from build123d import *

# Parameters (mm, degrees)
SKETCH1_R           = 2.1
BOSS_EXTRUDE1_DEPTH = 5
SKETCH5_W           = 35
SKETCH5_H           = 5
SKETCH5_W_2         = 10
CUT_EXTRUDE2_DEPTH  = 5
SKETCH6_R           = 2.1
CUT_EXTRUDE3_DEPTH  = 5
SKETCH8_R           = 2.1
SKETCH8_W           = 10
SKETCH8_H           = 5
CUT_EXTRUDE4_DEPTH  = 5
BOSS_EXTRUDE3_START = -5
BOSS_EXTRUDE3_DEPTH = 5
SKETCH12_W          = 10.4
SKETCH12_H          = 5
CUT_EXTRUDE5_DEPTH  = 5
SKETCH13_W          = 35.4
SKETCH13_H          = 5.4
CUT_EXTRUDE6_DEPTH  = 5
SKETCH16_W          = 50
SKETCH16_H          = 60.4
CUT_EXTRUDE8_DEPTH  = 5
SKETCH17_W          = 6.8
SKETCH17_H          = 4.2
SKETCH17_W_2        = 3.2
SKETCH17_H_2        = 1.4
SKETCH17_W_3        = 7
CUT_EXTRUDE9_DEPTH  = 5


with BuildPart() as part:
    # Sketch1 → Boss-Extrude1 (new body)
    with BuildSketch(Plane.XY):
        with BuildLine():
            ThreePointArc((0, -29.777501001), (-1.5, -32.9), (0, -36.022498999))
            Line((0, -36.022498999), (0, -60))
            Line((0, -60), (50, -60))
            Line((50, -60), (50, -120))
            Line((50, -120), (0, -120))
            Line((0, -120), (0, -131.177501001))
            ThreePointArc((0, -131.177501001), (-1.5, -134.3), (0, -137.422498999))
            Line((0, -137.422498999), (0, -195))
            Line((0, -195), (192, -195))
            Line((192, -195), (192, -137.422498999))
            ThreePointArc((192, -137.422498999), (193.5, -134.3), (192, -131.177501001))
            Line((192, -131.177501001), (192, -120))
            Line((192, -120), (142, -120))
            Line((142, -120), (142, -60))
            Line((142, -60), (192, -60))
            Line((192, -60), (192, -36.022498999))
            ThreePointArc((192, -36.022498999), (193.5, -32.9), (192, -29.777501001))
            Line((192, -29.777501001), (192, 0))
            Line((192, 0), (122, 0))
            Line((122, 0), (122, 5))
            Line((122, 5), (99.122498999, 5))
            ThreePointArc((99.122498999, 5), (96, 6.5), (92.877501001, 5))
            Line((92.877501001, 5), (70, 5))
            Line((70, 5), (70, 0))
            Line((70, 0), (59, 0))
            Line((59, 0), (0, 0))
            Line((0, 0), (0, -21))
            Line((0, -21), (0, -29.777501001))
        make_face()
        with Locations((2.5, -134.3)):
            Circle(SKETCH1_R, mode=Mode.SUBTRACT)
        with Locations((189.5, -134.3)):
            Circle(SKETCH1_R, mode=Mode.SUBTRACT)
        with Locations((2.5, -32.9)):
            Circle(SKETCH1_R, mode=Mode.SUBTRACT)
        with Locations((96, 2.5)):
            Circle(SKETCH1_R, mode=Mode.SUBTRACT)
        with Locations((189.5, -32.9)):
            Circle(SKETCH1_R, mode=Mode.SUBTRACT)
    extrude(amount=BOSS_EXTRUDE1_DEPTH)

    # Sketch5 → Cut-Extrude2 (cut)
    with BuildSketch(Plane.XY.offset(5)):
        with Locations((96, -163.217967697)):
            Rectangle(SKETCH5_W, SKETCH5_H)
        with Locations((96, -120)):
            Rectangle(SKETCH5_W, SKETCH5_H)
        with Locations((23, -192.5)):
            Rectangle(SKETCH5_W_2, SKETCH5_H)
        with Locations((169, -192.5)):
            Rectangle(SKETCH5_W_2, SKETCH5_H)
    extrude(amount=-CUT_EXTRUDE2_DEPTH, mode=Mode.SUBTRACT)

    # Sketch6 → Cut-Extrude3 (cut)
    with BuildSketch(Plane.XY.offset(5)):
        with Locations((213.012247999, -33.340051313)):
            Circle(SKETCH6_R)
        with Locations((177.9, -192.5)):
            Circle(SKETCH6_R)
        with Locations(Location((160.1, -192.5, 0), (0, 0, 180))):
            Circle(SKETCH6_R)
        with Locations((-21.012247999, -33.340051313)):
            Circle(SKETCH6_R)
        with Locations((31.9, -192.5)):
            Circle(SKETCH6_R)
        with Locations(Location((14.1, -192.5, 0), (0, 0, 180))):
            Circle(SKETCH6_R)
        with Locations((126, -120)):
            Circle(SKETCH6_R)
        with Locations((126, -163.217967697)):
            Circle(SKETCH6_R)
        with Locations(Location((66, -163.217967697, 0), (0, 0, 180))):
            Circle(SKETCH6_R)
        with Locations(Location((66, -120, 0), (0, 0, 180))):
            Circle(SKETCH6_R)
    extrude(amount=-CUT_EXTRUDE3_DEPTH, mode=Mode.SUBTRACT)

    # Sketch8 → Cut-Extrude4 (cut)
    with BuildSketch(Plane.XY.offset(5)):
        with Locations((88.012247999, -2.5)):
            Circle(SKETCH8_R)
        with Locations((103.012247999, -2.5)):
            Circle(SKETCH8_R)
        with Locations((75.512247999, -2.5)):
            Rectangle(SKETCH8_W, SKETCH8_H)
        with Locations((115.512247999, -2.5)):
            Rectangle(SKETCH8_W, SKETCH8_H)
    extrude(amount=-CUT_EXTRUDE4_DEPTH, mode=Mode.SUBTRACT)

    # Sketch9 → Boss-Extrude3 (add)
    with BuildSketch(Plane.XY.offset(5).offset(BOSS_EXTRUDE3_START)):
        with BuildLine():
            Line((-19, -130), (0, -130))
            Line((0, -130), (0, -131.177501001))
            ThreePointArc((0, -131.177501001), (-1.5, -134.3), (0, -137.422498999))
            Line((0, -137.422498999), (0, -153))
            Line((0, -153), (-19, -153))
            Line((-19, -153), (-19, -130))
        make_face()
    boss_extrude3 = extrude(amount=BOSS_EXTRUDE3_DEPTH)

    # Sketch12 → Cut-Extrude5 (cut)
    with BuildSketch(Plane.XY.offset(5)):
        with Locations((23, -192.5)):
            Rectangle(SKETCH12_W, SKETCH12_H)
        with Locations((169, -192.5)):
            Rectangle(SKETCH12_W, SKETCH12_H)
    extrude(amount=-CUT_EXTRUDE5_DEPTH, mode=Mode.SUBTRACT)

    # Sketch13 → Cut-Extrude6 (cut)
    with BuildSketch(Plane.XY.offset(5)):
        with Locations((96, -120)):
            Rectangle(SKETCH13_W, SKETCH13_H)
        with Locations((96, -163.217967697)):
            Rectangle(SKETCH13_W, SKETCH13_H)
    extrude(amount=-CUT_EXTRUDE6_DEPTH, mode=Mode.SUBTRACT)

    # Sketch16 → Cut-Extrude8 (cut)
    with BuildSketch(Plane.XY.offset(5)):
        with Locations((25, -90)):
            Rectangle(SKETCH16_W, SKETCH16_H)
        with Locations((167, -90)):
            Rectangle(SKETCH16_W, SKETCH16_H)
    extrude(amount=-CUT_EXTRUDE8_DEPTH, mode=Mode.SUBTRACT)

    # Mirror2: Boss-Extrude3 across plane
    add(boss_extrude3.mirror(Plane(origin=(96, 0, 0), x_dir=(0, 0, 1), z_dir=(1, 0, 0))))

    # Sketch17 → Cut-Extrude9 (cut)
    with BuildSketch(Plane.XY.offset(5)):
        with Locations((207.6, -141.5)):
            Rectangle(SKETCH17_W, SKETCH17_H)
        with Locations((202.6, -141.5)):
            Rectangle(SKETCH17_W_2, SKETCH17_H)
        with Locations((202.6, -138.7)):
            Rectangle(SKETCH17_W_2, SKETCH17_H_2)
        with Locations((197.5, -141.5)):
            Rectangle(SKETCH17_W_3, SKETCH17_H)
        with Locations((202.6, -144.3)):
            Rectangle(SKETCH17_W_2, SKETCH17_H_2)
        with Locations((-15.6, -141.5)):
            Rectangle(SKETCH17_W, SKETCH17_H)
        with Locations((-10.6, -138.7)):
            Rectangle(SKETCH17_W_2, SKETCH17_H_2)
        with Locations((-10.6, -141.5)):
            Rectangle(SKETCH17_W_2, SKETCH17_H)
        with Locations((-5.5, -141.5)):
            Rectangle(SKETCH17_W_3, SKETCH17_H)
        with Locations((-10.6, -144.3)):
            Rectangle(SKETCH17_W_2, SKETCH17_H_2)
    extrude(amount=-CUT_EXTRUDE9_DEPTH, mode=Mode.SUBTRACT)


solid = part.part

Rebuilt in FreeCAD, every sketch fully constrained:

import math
import FreeCAD as App
import Part
import Sketcher

doc = App.newDocument("Part")
params = doc.addObject("Spreadsheet::Sheet", "Params")
for row, (alias, value) in enumerate([
    ("sketch1_radius", "4 mm"),
    ("sketch1_diameter", "4.2 mm"),
    ("sketch1_width", "50 mm"),
    ("sketch1_width2", "192 mm"),
    ("sketch1_width3", "70 mm"),
    ("pad1_length", "5 mm"),
    ("sketch2_width", "35 mm"),
    ("sketch2_width2", "10 mm"),
    ("sketch2_height", "5 mm"),
    ("pocket1_length", "5 mm"),
    ("sketch3_diameter", "4.2 mm"),
    ("pocket2_length", "5 mm"),
    ("sketch4_diameter", "4.2 mm"),
    ("sketch4_width", "10 mm"),
    ("sketch4_height", "5 mm"),
    ("pocket3_length", "5 mm"),
    ("sketch5_radius", "4 mm"),
    ("sketch5_width", "19 mm"),
    ("sketch5_height", "23 mm"),
    ("pad2_length", "5 mm"),
    ("sketch6_height", "5 mm"),
    ("sketch6_width", "10.4 mm"),
    ("pocket4_length", "5 mm"),
    ("sketch7_width", "35.4 mm"),
    ("sketch7_height", "5.4 mm"),
    ("pocket5_length", "5 mm"),
    ("sketch8_width", "50 mm"),
    ("sketch8_height", "60.4 mm"),
    ("pocket6_length", "5 mm"),
    ("sketch9_width", "7 mm"),
    ("sketch9_width2", "6.8 mm"),
    ("sketch9_width3", "3.2 mm"),
    ("sketch9_height", "4.2 mm"),
    ("sketch9_height2", "1.4 mm"),
    ("pocket7_length", "5 mm"),
], start=1):
    params.set(f"A{row}", alias)
    params.set(f"B{row}", "=" + value)
    params.setAlias(f"B{row}", alias)

body = doc.addObject("PartDesign::Body", "Body")

sketch1 = body.newObject("Sketcher::SketchObject", "Sketch")
sketch1.AttachmentSupport = (doc.getObject("XY_Plane"), [""])
sketch1.MapMode = "FlatFace"
sketch1.addGeometry([
    Part.ArcOfCircle(Part.Circle(App.Vector(2.5, -32.9, 0), App.Vector(0, 0, 1), 4), math.radians(129), math.radians(231)),
    Part.LineSegment(App.Vector(0, -36, 0), App.Vector(0, -60, 0)),
    Part.LineSegment(App.Vector(0, -60, 0), App.Vector(50, -60, 0)),
    Part.LineSegment(App.Vector(50, -60, 0), App.Vector(50, -120, 0)),
    Part.LineSegment(App.Vector(50, -120, 0), App.Vector(0, -120, 0)),
    Part.LineSegment(App.Vector(0, -120, 0), App.Vector(0, -131.2, 0)),
    Part.ArcOfCircle(Part.Circle(App.Vector(2.5, -134.3, 0), App.Vector(0, 0, 1), 4), math.radians(129), math.radians(231)),
    Part.LineSegment(App.Vector(0, -137.4, 0), App.Vector(0, -195, 0)),
    Part.LineSegment(App.Vector(0, -195, 0), App.Vector(192, -195, 0)),
    Part.LineSegment(App.Vector(192, -195, 0), App.Vector(192, -137.4, 0)),
    Part.ArcOfCircle(Part.Circle(App.Vector(189.5, -134.3, 0), App.Vector(0, 0, 1), 4), math.radians(-51), math.radians(51)),
    Part.LineSegment(App.Vector(192, -131.2, 0), App.Vector(192, -120, 0)),
    Part.LineSegment(App.Vector(192, -120, 0), App.Vector(142, -120, 0)),
    Part.LineSegment(App.Vector(142, -120, 0), App.Vector(142, -60, 0)),
    Part.LineSegment(App.Vector(142, -60, 0), App.Vector(192, -60, 0)),
    Part.LineSegment(App.Vector(192, -60, 0), App.Vector(192, -36, 0)),
    Part.ArcOfCircle(Part.Circle(App.Vector(189.5, -32.9, 0), App.Vector(0, 0, 1), 4), math.radians(-51), math.radians(51)),
    Part.LineSegment(App.Vector(192, -29.8, 0), App.Vector(192, 0, 0)),
    Part.LineSegment(App.Vector(192, 0, 0), App.Vector(122, 0, 0)),
    Part.LineSegment(App.Vector(122, 0, 0), App.Vector(122, 5, 0)),
    Part.LineSegment(App.Vector(122, 5, 0), App.Vector(99.1, 5, 0)),
    Part.ArcOfCircle(Part.Circle(App.Vector(96, 2.5, 0), App.Vector(0, 0, 1), 4), math.radians(39), math.radians(141)),
    Part.LineSegment(App.Vector(92.9, 5, 0), App.Vector(70, 5, 0)),
    Part.LineSegment(App.Vector(70, 5, 0), App.Vector(70, 0, 0)),
    Part.LineSegment(App.Vector(70, 0, 0), App.Vector(0, 0, 0)),
    Part.LineSegment(App.Vector(0, 0, 0), App.Vector(0, -29.8, 0)),
    Part.Circle(App.Vector(2.5, -134.3, 0), App.Vector(0, 0, 1), 2.1),
    Part.Circle(App.Vector(189.5, -134.3, 0), App.Vector(0, 0, 1), 2.1),
    Part.Circle(App.Vector(2.5, -32.9, 0), App.Vector(0, 0, 1), 2.1),
    Part.Circle(App.Vector(189.5, -32.9, 0), App.Vector(0, 0, 1), 2.1),
    Part.Circle(App.Vector(96, 2.5, 0), App.Vector(0, 0, 1), 2.1),
], False)
sketch1.addConstraint([
    Sketcher.Constraint("Coincident", 0, 2, 1, 1),
    Sketcher.Constraint("Coincident", 1, 2, 2, 1),
    Sketcher.Constraint("Coincident", 2, 2, 3, 1),
    Sketcher.Constraint("Coincident", 3, 2, 4, 1),
    Sketcher.Constraint("Coincident", 4, 2, 5, 1),
    Sketcher.Constraint("Coincident", 5, 2, 6, 1),
    Sketcher.Constraint("Coincident", 6, 2, 7, 1),
    Sketcher.Constraint("Coincident", 7, 2, 8, 1),
    Sketcher.Constraint("Coincident", 8, 2, 9, 1),
    Sketcher.Constraint("Coincident", 9, 2, 10, 1),
    Sketcher.Constraint("Coincident", 10, 2, 11, 1),
    Sketcher.Constraint("Coincident", 11, 2, 12, 1),
    Sketcher.Constraint("Coincident", 12, 2, 13, 1),
    Sketcher.Constraint("Coincident", 13, 2, 14, 1),
    Sketcher.Constraint("Coincident", 14, 2, 15, 1),
    Sketcher.Constraint("Coincident", 15, 2, 16, 1),
    Sketcher.Constraint("Coincident", 16, 2, 17, 1),
    Sketcher.Constraint("Coincident", 17, 2, 18, 1),
    Sketcher.Constraint("Coincident", 18, 2, 19, 1),
    Sketcher.Constraint("Coincident", 19, 2, 20, 1),
    Sketcher.Constraint("Coincident", 20, 2, 21, 1),
    Sketcher.Constraint("Coincident", 21, 2, 22, 1),
    Sketcher.Constraint("Coincident", 22, 2, 23, 1),
    Sketcher.Constraint("Coincident", 23, 2, 24, 1),
    Sketcher.Constraint("Coincident", 24, 2, 25, 1),
    Sketcher.Constraint("Coincident", 25, 2, 0, 1),
    Sketcher.Constraint("Vertical", 1),
    Sketcher.Constraint("Horizontal", 2),
    Sketcher.Constraint("Vertical", 3),
    Sketcher.Constraint("Horizontal", 4),
    Sketcher.Constraint("Vertical", 5),
    Sketcher.Constraint("Vertical", 7),
    Sketcher.Constraint("Horizontal", 8),
    Sketcher.Constraint("Vertical", 9),
    Sketcher.Constraint("Vertical", 11),
    Sketcher.Constraint("Horizontal", 12),
    Sketcher.Constraint("Vertical", 13),
    Sketcher.Constraint("Horizontal", 14),
    Sketcher.Constraint("Vertical", 15),
    Sketcher.Constraint("Vertical", 17),
    Sketcher.Constraint("Horizontal", 18),
    Sketcher.Constraint("Vertical", 19),
    Sketcher.Constraint("Horizontal", 20),
    Sketcher.Constraint("Horizontal", 22),
    Sketcher.Constraint("Vertical", 23),
    Sketcher.Constraint("Horizontal", 24),
    Sketcher.Constraint("Vertical", 25),
    Sketcher.Constraint("Coincident", 24, 2, -1, 1),
    Sketcher.Constraint("Coincident", 26, 3, 6, 3),
    Sketcher.Constraint("Coincident", 27, 3, 10, 3),
    Sketcher.Constraint("Coincident", 28, 3, 0, 3),
    Sketcher.Constraint("Coincident", 29, 3, 16, 3),
    Sketcher.Constraint("Coincident", 30, 3, 21, 3),
    Sketcher.Constraint("Equal", 0, 6),
    Sketcher.Constraint("Equal", 6, 10),
    Sketcher.Constraint("Equal", 10, 16),
    Sketcher.Constraint("Equal", 16, 21),
    Sketcher.Constraint("Equal", 26, 27),
    Sketcher.Constraint("Equal", 27, 28),
    Sketcher.Constraint("Equal", 28, 29),
    Sketcher.Constraint("Equal", 29, 30),
    Sketcher.Constraint("PointOnObject", 0, 2, -2),
    Sketcher.Constraint("PointOnObject", 4, 2, -2),
    Sketcher.Constraint("PointOnObject", 6, 2, -2),
    Sketcher.Constraint("PointOnObject", 17, 2, -1),
    Sketcher.Constraint("Horizontal", 6, 3, 10, 3),
    Sketcher.Constraint("Horizontal", 0, 3, 16, 3),
    Sketcher.Constraint("Horizontal", 6, 2, 9, 2),
    Sketcher.Constraint("Horizontal", 5, 2, 10, 2),
    Sketcher.Constraint("Horizontal", 4, 2, 11, 2),
    Sketcher.Constraint("Horizontal", 2, 2, 13, 2),
    Sketcher.Constraint("Horizontal", 0, 2, 15, 2),
    Sketcher.Constraint("Horizontal", 20, 2, 21, 2),
    Sketcher.Constraint("Horizontal", 16, 2, 25, 2),
    Sketcher.Constraint("Vertical", 0, 3, 6, 3),
    Sketcher.Constraint("Vertical", 10, 3, 16, 3),
    Sketcher.Constraint("Equal", 4, 12),
    Sketcher.Constraint("Equal", 20, 22),
    Sketcher.Constraint("Equal", 18, 24),
    Sketcher.Constraint("Radius", 0, 4.0),
    Sketcher.Constraint("Diameter", 26, 4.2),
    Sketcher.Constraint("DistanceX", 2, 1, 2, 2, 50.0),
    Sketcher.Constraint("DistanceX", 8, 1, 8, 2, 192.0),
    Sketcher.Constraint("DistanceX", 18, 2, 18, 1, 70.0),
    Sketcher.Constraint("DistanceY", 3, 2, 3, 1, 60.0),
    Sketcher.Constraint("DistanceY", 19, 1, 19, 2, 5.0),
    Sketcher.Constraint("DistanceY", 1, 2, -1, 1, 60.0),
    Sketcher.Constraint("DistanceY", 7, 2, -1, 1, 195.0),
    Sketcher.Constraint("DistanceX", 6, 3, 10, 3, 187.0),
    Sketcher.Constraint("DistanceY", 0, 3, -1, 1, 32.9),
    Sketcher.Constraint("DistanceY", 6, 3, -1, 1, 134.3),
    Sketcher.Constraint("DistanceY", -1, 1, 21, 3, 2.5),
])
sketch1.setExpression("Constraints[79]", "Params.sketch1_radius")
sketch1.setExpression("Constraints[80]", "Params.sketch1_diameter")
sketch1.setExpression("Constraints[81]", "Params.sketch1_width")
sketch1.setExpression("Constraints[82]", "Params.sketch1_width2")
sketch1.setExpression("Constraints[83]", "Params.sketch1_width3")
pad1 = body.newObject("PartDesign::Pad", "Pad")
pad1.Profile = sketch1
pad1.setExpression("Length", "Params.pad1_length")

sketch2 = body.newObject("Sketcher::SketchObject", "Sketch001")
sketch2.AttachmentSupport = (doc.getObject("XY_Plane"), [""])
sketch2.MapMode = "FlatFace"
sketch2.AttachmentOffset = App.Placement(App.Vector(0, 0, 5), App.Rotation())
sketch2.addGeometry([
    Part.LineSegment(App.Vector(78, -161, 0), App.Vector(78, -166, 0)),
    Part.LineSegment(App.Vector(78, -166, 0), App.Vector(114, -166, 0)),
    Part.LineSegment(App.Vector(114, -166, 0), App.Vector(114, -161, 0)),
    Part.LineSegment(App.Vector(114, -161, 0), App.Vector(78, -161, 0)),
    Part.LineSegment(App.Vector(78, -118, 0), App.Vector(78, -122, 0)),
    Part.LineSegment(App.Vector(78, -122, 0), App.Vector(114, -122, 0)),
    Part.LineSegment(App.Vector(114, -122, 0), App.Vector(114, -118, 0)),
    Part.LineSegment(App.Vector(114, -118, 0), App.Vector(78, -118, 0)),
    Part.LineSegment(App.Vector(18, -190, 0), App.Vector(18, -195, 0)),
    Part.LineSegment(App.Vector(18, -195, 0), App.Vector(28, -195, 0)),
    Part.LineSegment(App.Vector(28, -195, 0), App.Vector(28, -190, 0)),
    Part.LineSegment(App.Vector(28, -190, 0), App.Vector(18, -190, 0)),
    Part.LineSegment(App.Vector(164, -190, 0), App.Vector(164, -195, 0)),
    Part.LineSegment(App.Vector(164, -195, 0), App.Vector(174, -195, 0)),
    Part.LineSegment(App.Vector(174, -195, 0), App.Vector(174, -190, 0)),
    Part.LineSegment(App.Vector(174, -190, 0), App.Vector(164, -190, 0)),
], False)
sketch2.addConstraint([
    Sketcher.Constraint("Coincident", 0, 2, 1, 1),
    Sketcher.Constraint("Coincident", 1, 2, 2, 1),
    Sketcher.Constraint("Coincident", 2, 2, 3, 1),
    Sketcher.Constraint("Coincident", 3, 2, 0, 1),
    Sketcher.Constraint("Coincident", 4, 2, 5, 1),
    Sketcher.Constraint("Coincident", 5, 2, 6, 1),
    Sketcher.Constraint("Coincident", 6, 2, 7, 1),
    Sketcher.Constraint("Coincident", 7, 2, 4, 1),
    Sketcher.Constraint("Coincident", 8, 2, 9, 1),
    Sketcher.Constraint("Coincident", 9, 2, 10, 1),
    Sketcher.Constraint("Coincident", 10, 2, 11, 1),
    Sketcher.Constraint("Coincident", 11, 2, 8, 1),
    Sketcher.Constraint("Coincident", 12, 2, 13, 1),
    Sketcher.Constraint("Coincident", 13, 2, 14, 1),
    Sketcher.Constraint("Coincident", 14, 2, 15, 1),
    Sketcher.Constraint("Coincident", 15, 2, 12, 1),
    Sketcher.Constraint("Vertical", 0),
    Sketcher.Constraint("Horizontal", 1),
    Sketcher.Constraint("Vertical", 2),
    Sketcher.Constraint("Horizontal", 3),
    Sketcher.Constraint("Vertical", 4),
    Sketcher.Constraint("Horizontal", 5),
    Sketcher.Constraint("Vertical", 6),
    Sketcher.Constraint("Horizontal", 7),
    Sketcher.Constraint("Vertical", 8),
    Sketcher.Constraint("Horizontal", 9),
    Sketcher.Constraint("Vertical", 10),
    Sketcher.Constraint("Horizontal", 11),
    Sketcher.Constraint("Vertical", 12),
    Sketcher.Constraint("Horizontal", 13),
    Sketcher.Constraint("Vertical", 14),
    Sketcher.Constraint("Horizontal", 15),
    Sketcher.Constraint("Horizontal", 9, 2, 12, 2),
    Sketcher.Constraint("Horizontal", 11, 2, 14, 2),
    Sketcher.Constraint("Vertical", 3, 2, 4, 2),
    Sketcher.Constraint("Vertical", 2, 2, 5, 2),
    Sketcher.Constraint("Equal", 11, 13),
    Sketcher.Constraint("Equal", 2, 4),
    Sketcher.Constraint("Equal", 6, 8),
    Sketcher.Constraint("DistanceX", 1, 1, 1, 2, 35.0),
    Sketcher.Constraint("DistanceX", 9, 1, 9, 2, 10.0),
    Sketcher.Constraint("DistanceY", 0, 2, 0, 1, 5.0),
    Sketcher.Constraint("DistanceX", -1, 1, 8, 2, 18.0),
    Sketcher.Constraint("DistanceY", 8, 2, -1, 1, 195.0),
    Sketcher.Constraint("DistanceX", -1, 1, 12, 2, 164.0),
    Sketcher.Constraint("DistanceX", -1, 1, 0, 2, 78.5),
    Sketcher.Constraint("DistanceY", 4, 2, -1, 1, 122.5),
    Sketcher.Constraint("DistanceY", 0, 2, -1, 1, 165.717968),
])
sketch2.setExpression("Constraints[39]", "Params.sketch2_width")
sketch2.setExpression("Constraints[40]", "Params.sketch2_width2")
sketch2.setExpression("Constraints[41]", "Params.sketch2_height")
pocket1 = body.newObject("PartDesign::Pocket", "Pocket")
pocket1.Profile = sketch2
pocket1.setExpression("Length", "Params.pocket1_length")

sketch3 = body.newObject("Sketcher::SketchObject", "Sketch002")
sketch3.AttachmentSupport = (doc.getObject("XY_Plane"), [""])
sketch3.MapMode = "FlatFace"
sketch3.AttachmentOffset = App.Placement(App.Vector(0, 0, 5), App.Rotation())
sketch3.addGeometry([
    Part.Circle(App.Vector(213, -33.3, 0), App.Vector(0, 0, 1), 2.1),
    Part.Circle(App.Vector(177.9, -192.5, 0), App.Vector(0, 0, 1), 2.1),
    Part.Circle(App.Vector(160.1, -192.5, 0), App.Vector(0, 0, 1), 2.1),
    Part.Circle(App.Vector(-21, -33.3, 0), App.Vector(0, 0, 1), 2.1),
    Part.Circle(App.Vector(31.9, -192.5, 0), App.Vector(0, 0, 1), 2.1),
    Part.Circle(App.Vector(14.1, -192.5, 0), App.Vector(0, 0, 1), 2.1),
    Part.Circle(App.Vector(126, -120, 0), App.Vector(0, 0, 1), 2.1),
    Part.Circle(App.Vector(126, -163.2, 0), App.Vector(0, 0, 1), 2.1),
    Part.Circle(App.Vector(66, -163.2, 0), App.Vector(0, 0, 1), 2.1),
    Part.Circle(App.Vector(66, -120, 0), App.Vector(0, 0, 1), 2.1),
], False)
sketch3.addConstraint([
    Sketcher.Constraint("Equal", 0, 1),
    Sketcher.Constraint("Equal", 1, 2),
    Sketcher.Constraint("Equal", 2, 3),
    Sketcher.Constraint("Equal", 3, 4),
    Sketcher.Constraint("Equal", 4, 5),
    Sketcher.Constraint("Equal", 5, 6),
    Sketcher.Constraint("Equal", 6, 7),
    Sketcher.Constraint("Equal", 7, 8),
    Sketcher.Constraint("Equal", 8, 9),
    Sketcher.Constraint("Horizontal", 1, 3, 2, 3),
    Sketcher.Constraint("Horizontal", 0, 3, 3, 3),
    Sketcher.Constraint("Horizontal", 2, 3, 4, 3),
    Sketcher.Constraint("Horizontal", 4, 3, 5, 3),
    Sketcher.Constraint("Horizontal", 7, 3, 8, 3),
    Sketcher.Constraint("Horizontal", 6, 3, 9, 3),
    Sketcher.Constraint("Vertical", 6, 3, 7, 3),
    Sketcher.Constraint("Vertical", 8, 3, 9, 3),
    Sketcher.Constraint("Diameter", 0, 4.2),
    Sketcher.Constraint("DistanceX", -1, 1, 6, 3, 126.0),
    Sketcher.Constraint("DistanceY", 6, 3, -1, 1, 120.0),
    Sketcher.Constraint("DistanceX", -1, 1, 8, 3, 66.0),
    Sketcher.Constraint("DistanceX", 4, 3, 1, 3, 146.0),
    Sketcher.Constraint("DistanceX", 5, 3, 2, 3, 146.0),
    Sketcher.Constraint("DistanceX", -1, 1, 1, 3, 177.9),
    Sketcher.Constraint("DistanceY", 1, 3, -1, 1, 192.5),
    Sketcher.Constraint("DistanceX", -1, 1, 2, 3, 160.1),
    Sketcher.Constraint("DistanceY", 0, 3, -1, 1, 33.340051),
    Sketcher.Constraint("DistanceX", -1, 1, 0, 3, 213.012248),
    Sketcher.Constraint("DistanceX", 3, 3, -1, 1, 21.012248),
    Sketcher.Constraint("DistanceY", 7, 3, -1, 1, 163.217968),
])
sketch3.setExpression("Constraints[17]", "Params.sketch3_diameter")
pocket2 = body.newObject("PartDesign::Pocket", "Pocket001")
pocket2.Profile = sketch3
pocket2.setExpression("Length", "Params.pocket2_length")

sketch4 = body.newObject("Sketcher::SketchObject", "Sketch003")
sketch4.AttachmentSupport = (doc.getObject("XY_Plane"), [""])
sketch4.MapMode = "FlatFace"
sketch4.AttachmentOffset = App.Placement(App.Vector(0, 0, 5), App.Rotation())
sketch4.addGeometry([
    Part.Circle(App.Vector(88, -2.5, 0), App.Vector(0, 0, 1), 2.1),
    Part.Circle(App.Vector(103, -2.5, 0), App.Vector(0, 0, 1), 2.1),
    Part.LineSegment(App.Vector(70.5, 0, 0), App.Vector(70.5, -5, 0)),
    Part.LineSegment(App.Vector(70.5, -5, 0), App.Vector(80.5, -5, 0)),
    Part.LineSegment(App.Vector(80.5, -5, 0), App.Vector(80.5, 0, 0)),
    Part.LineSegment(App.Vector(80.5, 0, 0), App.Vector(70.5, 0, 0)),
    Part.LineSegment(App.Vector(110.5, 0, 0), App.Vector(110.5, -5, 0)),
    Part.LineSegment(App.Vector(110.5, -5, 0), App.Vector(120.5, -5, 0)),
    Part.LineSegment(App.Vector(120.5, -5, 0), App.Vector(120.5, 0, 0)),
    Part.LineSegment(App.Vector(120.5, 0, 0), App.Vector(110.5, 0, 0)),
], False)
sketch4.addConstraint([
    Sketcher.Constraint("Coincident", 2, 2, 3, 1),
    Sketcher.Constraint("Coincident", 3, 2, 4, 1),
    Sketcher.Constraint("Coincident", 4, 2, 5, 1),
    Sketcher.Constraint("Coincident", 5, 2, 2, 1),
    Sketcher.Constraint("Coincident", 6, 2, 7, 1),
    Sketcher.Constraint("Coincident", 7, 2, 8, 1),
    Sketcher.Constraint("Coincident", 8, 2, 9, 1),
    Sketcher.Constraint("Coincident", 9, 2, 6, 1),
    Sketcher.Constraint("Vertical", 2),
    Sketcher.Constraint("Horizontal", 3),
    Sketcher.Constraint("Vertical", 4),
    Sketcher.Constraint("Horizontal", 5),
    Sketcher.Constraint("Vertical", 6),
    Sketcher.Constraint("Horizontal", 7),
    Sketcher.Constraint("Vertical", 8),
    Sketcher.Constraint("Horizontal", 9),
    Sketcher.Constraint("Equal", 0, 1),
    Sketcher.Constraint("PointOnObject", 4, 2, -1),
    Sketcher.Constraint("PointOnObject", 8, 2, -1),
    Sketcher.Constraint("Horizontal", 0, 3, 1, 3),
    Sketcher.Constraint("Horizontal", 3, 2, 6, 2),
    Sketcher.Constraint("Equal", 5, 7),
    Sketcher.Constraint("Diameter", 0, 4.2),
    Sketcher.Constraint("DistanceX", 3, 1, 3, 2, 10.0),
    Sketcher.Constraint("DistanceY", 2, 2, 2, 1, 5.0),
    Sketcher.Constraint("DistanceX", 0, 3, 1, 3, 15.0),
    Sketcher.Constraint("DistanceX", 3, 2, 6, 2, 30.0),
    Sketcher.Constraint("DistanceY", 0, 3, -1, 1, 2.5),
    Sketcher.Constraint("DistanceX", 2, 2, 0, 3, 17.5),
    Sketcher.Constraint("DistanceX", -1, 1, 0, 3, 88.012248),
])
sketch4.setExpression("Constraints[22]", "Params.sketch4_diameter")
sketch4.setExpression("Constraints[23]", "Params.sketch4_width")
sketch4.setExpression("Constraints[24]", "Params.sketch4_height")
pocket3 = body.newObject("PartDesign::Pocket", "Pocket002")
pocket3.Profile = sketch4
pocket3.setExpression("Length", "Params.pocket3_length")

sketch5 = body.newObject("Sketcher::SketchObject", "Sketch004")
sketch5.AttachmentSupport = (doc.getObject("XY_Plane"), [""])
sketch5.MapMode = "FlatFace"
sketch5.addGeometry([
    Part.LineSegment(App.Vector(0, -130, 0), App.Vector(-19, -130, 0)),
    Part.LineSegment(App.Vector(-19, -130, 0), App.Vector(-19, -153, 0)),
    Part.LineSegment(App.Vector(-19, -153, 0), App.Vector(0, -153, 0)),
    Part.LineSegment(App.Vector(0, -153, 0), App.Vector(0, -137.4, 0)),
    Part.ArcOfCircle(Part.Circle(App.Vector(2.5, -134.3, 0), App.Vector(0, 0, 1), 4), math.radians(129), math.radians(231)),
    Part.LineSegment(App.Vector(0, -131.2, 0), App.Vector(0, -130, 0)),
], False)
sketch5.addConstraint([
    Sketcher.Constraint("Coincident", 0, 2, 1, 1),
    Sketcher.Constraint("Coincident", 1, 2, 2, 1),
    Sketcher.Constraint("Coincident", 2, 2, 3, 1),
    Sketcher.Constraint("Coincident", 3, 2, 4, 2),
    Sketcher.Constraint("Coincident", 4, 1, 5, 1),
    Sketcher.Constraint("Coincident", 5, 2, 0, 1),
    Sketcher.Constraint("Horizontal", 0),
    Sketcher.Constraint("Vertical", 1),
    Sketcher.Constraint("Horizontal", 2),
    Sketcher.Constraint("Vertical", 3),
    Sketcher.Constraint("Vertical", 5),
    Sketcher.Constraint("PointOnObject", 2, 2, -2),
    Sketcher.Constraint("PointOnObject", 4, 1, -2),
    Sketcher.Constraint("Radius", 4, 4.0),
    Sketcher.Constraint("DistanceX", 0, 2, 0, 1, 19.0),
    Sketcher.Constraint("DistanceY", 1, 2, 1, 1, 23.0),
    Sketcher.Constraint("DistanceY", 0, 2, -1, 1, 130.0),
    Sketcher.Constraint("DistanceX", -1, 1, 4, 3, 2.5),
    Sketcher.Constraint("DistanceY", 4, 3, -1, 1, 134.3),
])
sketch5.setExpression("Constraints[13]", "Params.sketch5_radius")
sketch5.setExpression("Constraints[14]", "Params.sketch5_width")
sketch5.setExpression("Constraints[15]", "Params.sketch5_height")
pad2 = body.newObject("PartDesign::Pad", "Pad001")
pad2.Profile = sketch5
pad2.setExpression("Length", "Params.pad2_length")

sketch6 = body.newObject("Sketcher::SketchObject", "Sketch005")
sketch6.AttachmentSupport = (doc.getObject("XY_Plane"), [""])
sketch6.MapMode = "FlatFace"
sketch6.AttachmentOffset = App.Placement(App.Vector(0, 0, 5), App.Rotation())
sketch6.addGeometry([
    Part.LineSegment(App.Vector(18, -190, 0), App.Vector(18, -195, 0)),
    Part.LineSegment(App.Vector(18, -195, 0), App.Vector(28, -195, 0)),
    Part.LineSegment(App.Vector(28, -195, 0), App.Vector(28, -190, 0)),
    Part.LineSegment(App.Vector(28, -190, 0), App.Vector(18, -190, 0)),
    Part.LineSegment(App.Vector(164, -190, 0), App.Vector(164, -195, 0)),
    Part.LineSegment(App.Vector(164, -195, 0), App.Vector(174, -195, 0)),
    Part.LineSegment(App.Vector(174, -195, 0), App.Vector(174, -190, 0)),
    Part.LineSegment(App.Vector(174, -190, 0), App.Vector(164, -190, 0)),
], False)
sketch6.addConstraint([
    Sketcher.Constraint("Coincident", 0, 2, 1, 1),
    Sketcher.Constraint("Coincident", 1, 2, 2, 1),
    Sketcher.Constraint("Coincident", 2, 2, 3, 1),
    Sketcher.Constraint("Coincident", 3, 2, 0, 1),
    Sketcher.Constraint("Coincident", 4, 2, 5, 1),
    Sketcher.Constraint("Coincident", 5, 2, 6, 1),
    Sketcher.Constraint("Coincident", 6, 2, 7, 1),
    Sketcher.Constraint("Coincident", 7, 2, 4, 1),
    Sketcher.Constraint("Vertical", 0),
    Sketcher.Constraint("Horizontal", 1),
    Sketcher.Constraint("Vertical", 2),
    Sketcher.Constraint("Horizontal", 3),
    Sketcher.Constraint("Vertical", 4),
    Sketcher.Constraint("Horizontal", 5),
    Sketcher.Constraint("Vertical", 6),
    Sketcher.Constraint("Horizontal", 7),
    Sketcher.Constraint("Horizontal", 1, 2, 4, 2),
    Sketcher.Constraint("Horizontal", 3, 2, 6, 2),
    Sketcher.Constraint("Equal", 3, 5),
    Sketcher.Constraint("DistanceY", 0, 2, 0, 1, 5.0),
    Sketcher.Constraint("DistanceX", 1, 1, 1, 2, 10.4),
    Sketcher.Constraint("DistanceY", 0, 2, -1, 1, 195.0),
    Sketcher.Constraint("DistanceX", 0, 2, 4, 2, 146.0),
    Sketcher.Constraint("DistanceX", -1, 1, 0, 2, 17.8),
])
sketch6.setExpression("Constraints[19]", "Params.sketch6_height")
sketch6.setExpression("Constraints[20]", "Params.sketch6_width")
pocket4 = body.newObject("PartDesign::Pocket", "Pocket003")
pocket4.Profile = sketch6
pocket4.setExpression("Length", "Params.pocket4_length")

sketch7 = body.newObject("Sketcher::SketchObject", "Sketch006")
sketch7.AttachmentSupport = (doc.getObject("XY_Plane"), [""])
sketch7.MapMode = "FlatFace"
sketch7.AttachmentOffset = App.Placement(App.Vector(0, 0, 5), App.Rotation())
sketch7.addGeometry([
    Part.LineSegment(App.Vector(78, -117, 0), App.Vector(78, -123, 0)),
    Part.LineSegment(App.Vector(78, -123, 0), App.Vector(114, -123, 0)),
    Part.LineSegment(App.Vector(114, -123, 0), App.Vector(114, -117, 0)),
    Part.LineSegment(App.Vector(114, -117, 0), App.Vector(78, -117, 0)),
    Part.LineSegment(App.Vector(78, -161, 0), App.Vector(78, -166, 0)),
    Part.LineSegment(App.Vector(78, -166, 0), App.Vector(114, -166, 0)),
    Part.LineSegment(App.Vector(114, -166, 0), App.Vector(114, -161, 0)),
    Part.LineSegment(App.Vector(114, -161, 0), App.Vector(78, -161, 0)),
], False)
sketch7.addConstraint([
    Sketcher.Constraint("Coincident", 0, 2, 1, 1),
    Sketcher.Constraint("Coincident", 1, 2, 2, 1),
    Sketcher.Constraint("Coincident", 2, 2, 3, 1),
    Sketcher.Constraint("Coincident", 3, 2, 0, 1),
    Sketcher.Constraint("Coincident", 4, 2, 5, 1),
    Sketcher.Constraint("Coincident", 5, 2, 6, 1),
    Sketcher.Constraint("Coincident", 6, 2, 7, 1),
    Sketcher.Constraint("Coincident", 7, 2, 4, 1),
    Sketcher.Constraint("Vertical", 0),
    Sketcher.Constraint("Horizontal", 1),
    Sketcher.Constraint("Vertical", 2),
    Sketcher.Constraint("Horizontal", 3),
    Sketcher.Constraint("Vertical", 4),
    Sketcher.Constraint("Horizontal", 5),
    Sketcher.Constraint("Vertical", 6),
    Sketcher.Constraint("Horizontal", 7),
    Sketcher.Constraint("Vertical", 3, 2, 4, 2),
    Sketcher.Constraint("Vertical", 2, 2, 5, 2),
    Sketcher.Constraint("Equal", 2, 4),
    Sketcher.Constraint("DistanceX", 1, 1, 1, 2, 35.4),
    Sketcher.Constraint("DistanceY", 0, 2, 0, 1, 5.4),
    Sketcher.Constraint("DistanceX", -1, 1, 0, 2, 78.3),
    Sketcher.Constraint("DistanceY", 0, 2, -1, 1, 122.7),
    Sketcher.Constraint("DistanceY", 4, 2, -1, 1, 165.917968),
])
sketch7.setExpression("Constraints[19]", "Params.sketch7_width")
sketch7.setExpression("Constraints[20]", "Params.sketch7_height")
pocket5 = body.newObject("PartDesign::Pocket", "Pocket004")
pocket5.Profile = sketch7
pocket5.setExpression("Length", "Params.pocket5_length")

sketch8 = body.newObject("Sketcher::SketchObject", "Sketch007")
sketch8.AttachmentSupport = (doc.getObject("XY_Plane"), [""])
sketch8.MapMode = "FlatFace"
sketch8.AttachmentOffset = App.Placement(App.Vector(0, 0, 5), App.Rotation())
sketch8.addGeometry([
    Part.LineSegment(App.Vector(0, -60, 0), App.Vector(0, -120, 0)),
    Part.LineSegment(App.Vector(0, -120, 0), App.Vector(50, -120, 0)),
    Part.LineSegment(App.Vector(50, -120, 0), App.Vector(50, -60, 0)),
    Part.LineSegment(App.Vector(50, -60, 0), App.Vector(0, -60, 0)),
    Part.LineSegment(App.Vector(142, -60, 0), App.Vector(142, -120, 0)),
    Part.LineSegment(App.Vector(142, -120, 0), App.Vector(192, -120, 0)),
    Part.LineSegment(App.Vector(192, -120, 0), App.Vector(192, -60, 0)),
    Part.LineSegment(App.Vector(192, -60, 0), App.Vector(142, -60, 0)),
], False)
sketch8.addConstraint([
    Sketcher.Constraint("Coincident", 0, 2, 1, 1),
    Sketcher.Constraint("Coincident", 1, 2, 2, 1),
    Sketcher.Constraint("Coincident", 2, 2, 3, 1),
    Sketcher.Constraint("Coincident", 3, 2, 0, 1),
    Sketcher.Constraint("Coincident", 4, 2, 5, 1),
    Sketcher.Constraint("Coincident", 5, 2, 6, 1),
    Sketcher.Constraint("Coincident", 6, 2, 7, 1),
    Sketcher.Constraint("Coincident", 7, 2, 4, 1),
    Sketcher.Constraint("Vertical", 0),
    Sketcher.Constraint("Horizontal", 1),
    Sketcher.Constraint("Vertical", 2),
    Sketcher.Constraint("Horizontal", 3),
    Sketcher.Constraint("Vertical", 4),
    Sketcher.Constraint("Horizontal", 5),
    Sketcher.Constraint("Vertical", 6),
    Sketcher.Constraint("Horizontal", 7),
    Sketcher.Constraint("PointOnObject", 0, 2, -2),
    Sketcher.Constraint("Horizontal", 1, 2, 4, 2),
    Sketcher.Constraint("Horizontal", 3, 2, 6, 2),
    Sketcher.Constraint("Equal", 3, 5),
    Sketcher.Constraint("DistanceX", 1, 1, 1, 2, 50.0),
    Sketcher.Constraint("DistanceY", 0, 2, 0, 1, 60.4),
    Sketcher.Constraint("DistanceX", -1, 1, 4, 2, 142.0),
    Sketcher.Constraint("DistanceY", 0, 2, -1, 1, 120.2),
])
sketch8.setExpression("Constraints[20]", "Params.sketch8_width")
sketch8.setExpression("Constraints[21]", "Params.sketch8_height")
pocket6 = body.newObject("PartDesign::Pocket", "Pocket005")
pocket6.Profile = sketch8
pocket6.setExpression("Length", "Params.pocket6_length")
doc.recompute()

datumplane = body.newObject("PartDesign::Plane", "DatumPlane")
datumplane.AttachmentSupport = (doc.getObject("YZ_Plane"), [""])
datumplane.MapMode = "FlatFace"
datumplane.AttachmentOffset = App.Placement(App.Vector(0, 0, 96), App.Rotation())
mirrored = body.newObject("PartDesign::Mirrored", "Mirrored")
mirrored.Originals = [pad2]
mirrored.MirrorPlane = (datumplane, [""])
body.Tip = mirrored

sketch9 = body.newObject("Sketcher::SketchObject", "Sketch008")
sketch9.AttachmentSupport = (doc.getObject("XY_Plane"), [""])
sketch9.MapMode = "FlatFace"
sketch9.AttachmentOffset = App.Placement(App.Vector(0, 0, 5), App.Rotation())
sketch9.addGeometry([
    Part.LineSegment(App.Vector(211, -143.6, 0), App.Vector(211, -139.4, 0)),
    Part.LineSegment(App.Vector(211, -139.4, 0), App.Vector(204.2, -139.4, 0)),
    Part.LineSegment(App.Vector(204.2, -139.4, 0), App.Vector(204.2, -138, 0)),
    Part.LineSegment(App.Vector(204.2, -138, 0), App.Vector(201, -138, 0)),
    Part.LineSegment(App.Vector(201, -138, 0), App.Vector(201, -139.4, 0)),
    Part.LineSegment(App.Vector(201, -139.4, 0), App.Vector(194, -139.4, 0)),
    Part.LineSegment(App.Vector(194, -139.4, 0), App.Vector(194, -143.6, 0)),
    Part.LineSegment(App.Vector(194, -143.6, 0), App.Vector(201, -143.6, 0)),
    Part.LineSegment(App.Vector(201, -143.6, 0), App.Vector(201, -145, 0)),
    Part.LineSegment(App.Vector(201, -145, 0), App.Vector(204.2, -145, 0)),
    Part.LineSegment(App.Vector(204.2, -145, 0), App.Vector(204.2, -143.6, 0)),
    Part.LineSegment(App.Vector(204.2, -143.6, 0), App.Vector(211, -143.6, 0)),
    Part.LineSegment(App.Vector(-19, -139.4, 0), App.Vector(-19, -143.6, 0)),
    Part.LineSegment(App.Vector(-19, -143.6, 0), App.Vector(-12.2, -143.6, 0)),
    Part.LineSegment(App.Vector(-12.2, -143.6, 0), App.Vector(-12.2, -145, 0)),
    Part.LineSegment(App.Vector(-12.2, -145, 0), App.Vector(-9, -145, 0)),
    Part.LineSegment(App.Vector(-9, -145, 0), App.Vector(-9, -143.6, 0)),
    Part.LineSegment(App.Vector(-9, -143.6, 0), App.Vector(-2, -143.6, 0)),
    Part.LineSegment(App.Vector(-2, -143.6, 0), App.Vector(-2, -139.4, 0)),
    Part.LineSegment(App.Vector(-2, -139.4, 0), App.Vector(-9, -139.4, 0)),
    Part.LineSegment(App.Vector(-9, -139.4, 0), App.Vector(-9, -138, 0)),
    Part.LineSegment(App.Vector(-9, -138, 0), App.Vector(-12.2, -138, 0)),
    Part.LineSegment(App.Vector(-12.2, -138, 0), App.Vector(-12.2, -139.4, 0)),
    Part.LineSegment(App.Vector(-12.2, -139.4, 0), App.Vector(-19, -139.4, 0)),
], False)
sketch9.addConstraint([
    Sketcher.Constraint("Coincident", 0, 2, 1, 1),
    Sketcher.Constraint("Coincident", 1, 2, 2, 1),
    Sketcher.Constraint("Coincident", 2, 2, 3, 1),
    Sketcher.Constraint("Coincident", 3, 2, 4, 1),
    Sketcher.Constraint("Coincident", 4, 2, 5, 1),
    Sketcher.Constraint("Coincident", 5, 2, 6, 1),
    Sketcher.Constraint("Coincident", 6, 2, 7, 1),
    Sketcher.Constraint("Coincident", 7, 2, 8, 1),
    Sketcher.Constraint("Coincident", 8, 2, 9, 1),
    Sketcher.Constraint("Coincident", 9, 2, 10, 1),
    Sketcher.Constraint("Coincident", 10, 2, 11, 1),
    Sketcher.Constraint("Coincident", 11, 2, 0, 1),
    Sketcher.Constraint("Coincident", 12, 2, 13, 1),
    Sketcher.Constraint("Coincident", 13, 2, 14, 1),
    Sketcher.Constraint("Coincident", 14, 2, 15, 1),
    Sketcher.Constraint("Coincident", 15, 2, 16, 1),
    Sketcher.Constraint("Coincident", 16, 2, 17, 1),
    Sketcher.Constraint("Coincident", 17, 2, 18, 1),
    Sketcher.Constraint("Coincident", 18, 2, 19, 1),
    Sketcher.Constraint("Coincident", 19, 2, 20, 1),
    Sketcher.Constraint("Coincident", 20, 2, 21, 1),
    Sketcher.Constraint("Coincident", 21, 2, 22, 1),
    Sketcher.Constraint("Coincident", 22, 2, 23, 1),
    Sketcher.Constraint("Coincident", 23, 2, 12, 1),
    Sketcher.Constraint("Vertical", 0),
    Sketcher.Constraint("Horizontal", 1),
    Sketcher.Constraint("Vertical", 2),
    Sketcher.Constraint("Horizontal", 3),
    Sketcher.Constraint("Vertical", 4),
    Sketcher.Constraint("Horizontal", 5),
    Sketcher.Constraint("Vertical", 6),
    Sketcher.Constraint("Horizontal", 7),
    Sketcher.Constraint("Vertical", 8),
    Sketcher.Constraint("Horizontal", 9),
    Sketcher.Constraint("Vertical", 10),
    Sketcher.Constraint("Horizontal", 11),
    Sketcher.Constraint("Vertical", 12),
    Sketcher.Constraint("Horizontal", 13),
    Sketcher.Constraint("Vertical", 14),
    Sketcher.Constraint("Horizontal", 15),
    Sketcher.Constraint("Vertical", 16),
    Sketcher.Constraint("Horizontal", 17),
    Sketcher.Constraint("Vertical", 18),
    Sketcher.Constraint("Horizontal", 19),
    Sketcher.Constraint("Vertical", 20),
    Sketcher.Constraint("Horizontal", 21),
    Sketcher.Constraint("Vertical", 22),
    Sketcher.Constraint("Horizontal", 23),
    Sketcher.Constraint("Horizontal", 1, 2, 4, 2),
    Sketcher.Constraint("Horizontal", 7, 2, 10, 2),
    Sketcher.Constraint("Horizontal", 11, 2, 12, 2),
    Sketcher.Constraint("Horizontal", 9, 2, 14, 2),
    Sketcher.Constraint("Horizontal", 13, 2, 16, 2),
    Sketcher.Constraint("Horizontal", 5, 2, 18, 2),
    Sketcher.Constraint("Horizontal", 3, 2, 20, 2),
    Sketcher.Constraint("Horizontal", 19, 2, 22, 2),
    Sketcher.Constraint("Vertical", 4, 2, 7, 2),
    Sketcher.Constraint("Vertical", 2, 2, 9, 2),
    Sketcher.Constraint("Vertical", 16, 2, 19, 2),
    Sketcher.Constraint("Vertical", 14, 2, 21, 2),
    Sketcher.Constraint("Equal", 11, 13),
    Sketcher.Constraint("Equal", 9, 15),
    Sketcher.Constraint("Equal", 7, 17),
    Sketcher.Constraint("Equal", 4, 8),
    Sketcher.Constraint("DistanceX", 5, 2, 5, 1, 7.0),
    Sketcher.Constraint("DistanceX", 1, 2, 1, 1, 6.8),
    Sketcher.Constraint("DistanceX", 3, 2, 3, 1, 3.2),
    Sketcher.Constraint("DistanceY", 0, 1, 0, 2, 4.2),
    Sketcher.Constraint("DistanceY", 2, 1, 2, 2, 1.4),
    Sketcher.Constraint("DistanceX", -1, 1, 0, 2, 211.0),
    Sketcher.Constraint("DistanceY", 2, 2, -1, 1, 138.0),
    Sketcher.Constraint("DistanceX", 12, 2, -1, 1, 19.0),
])
sketch9.setExpression("Constraints[64]", "Params.sketch9_width")
sketch9.setExpression("Constraints[65]", "Params.sketch9_width2")
sketch9.setExpression("Constraints[66]", "Params.sketch9_width3")
sketch9.setExpression("Constraints[67]", "Params.sketch9_height")
sketch9.setExpression("Constraints[68]", "Params.sketch9_height2")
pocket7 = body.newObject("PartDesign::Pocket", "Pocket006")
pocket7.Profile = sketch9
pocket7.setExpression("Length", "Params.pocket7_length")

doc.recompute()
